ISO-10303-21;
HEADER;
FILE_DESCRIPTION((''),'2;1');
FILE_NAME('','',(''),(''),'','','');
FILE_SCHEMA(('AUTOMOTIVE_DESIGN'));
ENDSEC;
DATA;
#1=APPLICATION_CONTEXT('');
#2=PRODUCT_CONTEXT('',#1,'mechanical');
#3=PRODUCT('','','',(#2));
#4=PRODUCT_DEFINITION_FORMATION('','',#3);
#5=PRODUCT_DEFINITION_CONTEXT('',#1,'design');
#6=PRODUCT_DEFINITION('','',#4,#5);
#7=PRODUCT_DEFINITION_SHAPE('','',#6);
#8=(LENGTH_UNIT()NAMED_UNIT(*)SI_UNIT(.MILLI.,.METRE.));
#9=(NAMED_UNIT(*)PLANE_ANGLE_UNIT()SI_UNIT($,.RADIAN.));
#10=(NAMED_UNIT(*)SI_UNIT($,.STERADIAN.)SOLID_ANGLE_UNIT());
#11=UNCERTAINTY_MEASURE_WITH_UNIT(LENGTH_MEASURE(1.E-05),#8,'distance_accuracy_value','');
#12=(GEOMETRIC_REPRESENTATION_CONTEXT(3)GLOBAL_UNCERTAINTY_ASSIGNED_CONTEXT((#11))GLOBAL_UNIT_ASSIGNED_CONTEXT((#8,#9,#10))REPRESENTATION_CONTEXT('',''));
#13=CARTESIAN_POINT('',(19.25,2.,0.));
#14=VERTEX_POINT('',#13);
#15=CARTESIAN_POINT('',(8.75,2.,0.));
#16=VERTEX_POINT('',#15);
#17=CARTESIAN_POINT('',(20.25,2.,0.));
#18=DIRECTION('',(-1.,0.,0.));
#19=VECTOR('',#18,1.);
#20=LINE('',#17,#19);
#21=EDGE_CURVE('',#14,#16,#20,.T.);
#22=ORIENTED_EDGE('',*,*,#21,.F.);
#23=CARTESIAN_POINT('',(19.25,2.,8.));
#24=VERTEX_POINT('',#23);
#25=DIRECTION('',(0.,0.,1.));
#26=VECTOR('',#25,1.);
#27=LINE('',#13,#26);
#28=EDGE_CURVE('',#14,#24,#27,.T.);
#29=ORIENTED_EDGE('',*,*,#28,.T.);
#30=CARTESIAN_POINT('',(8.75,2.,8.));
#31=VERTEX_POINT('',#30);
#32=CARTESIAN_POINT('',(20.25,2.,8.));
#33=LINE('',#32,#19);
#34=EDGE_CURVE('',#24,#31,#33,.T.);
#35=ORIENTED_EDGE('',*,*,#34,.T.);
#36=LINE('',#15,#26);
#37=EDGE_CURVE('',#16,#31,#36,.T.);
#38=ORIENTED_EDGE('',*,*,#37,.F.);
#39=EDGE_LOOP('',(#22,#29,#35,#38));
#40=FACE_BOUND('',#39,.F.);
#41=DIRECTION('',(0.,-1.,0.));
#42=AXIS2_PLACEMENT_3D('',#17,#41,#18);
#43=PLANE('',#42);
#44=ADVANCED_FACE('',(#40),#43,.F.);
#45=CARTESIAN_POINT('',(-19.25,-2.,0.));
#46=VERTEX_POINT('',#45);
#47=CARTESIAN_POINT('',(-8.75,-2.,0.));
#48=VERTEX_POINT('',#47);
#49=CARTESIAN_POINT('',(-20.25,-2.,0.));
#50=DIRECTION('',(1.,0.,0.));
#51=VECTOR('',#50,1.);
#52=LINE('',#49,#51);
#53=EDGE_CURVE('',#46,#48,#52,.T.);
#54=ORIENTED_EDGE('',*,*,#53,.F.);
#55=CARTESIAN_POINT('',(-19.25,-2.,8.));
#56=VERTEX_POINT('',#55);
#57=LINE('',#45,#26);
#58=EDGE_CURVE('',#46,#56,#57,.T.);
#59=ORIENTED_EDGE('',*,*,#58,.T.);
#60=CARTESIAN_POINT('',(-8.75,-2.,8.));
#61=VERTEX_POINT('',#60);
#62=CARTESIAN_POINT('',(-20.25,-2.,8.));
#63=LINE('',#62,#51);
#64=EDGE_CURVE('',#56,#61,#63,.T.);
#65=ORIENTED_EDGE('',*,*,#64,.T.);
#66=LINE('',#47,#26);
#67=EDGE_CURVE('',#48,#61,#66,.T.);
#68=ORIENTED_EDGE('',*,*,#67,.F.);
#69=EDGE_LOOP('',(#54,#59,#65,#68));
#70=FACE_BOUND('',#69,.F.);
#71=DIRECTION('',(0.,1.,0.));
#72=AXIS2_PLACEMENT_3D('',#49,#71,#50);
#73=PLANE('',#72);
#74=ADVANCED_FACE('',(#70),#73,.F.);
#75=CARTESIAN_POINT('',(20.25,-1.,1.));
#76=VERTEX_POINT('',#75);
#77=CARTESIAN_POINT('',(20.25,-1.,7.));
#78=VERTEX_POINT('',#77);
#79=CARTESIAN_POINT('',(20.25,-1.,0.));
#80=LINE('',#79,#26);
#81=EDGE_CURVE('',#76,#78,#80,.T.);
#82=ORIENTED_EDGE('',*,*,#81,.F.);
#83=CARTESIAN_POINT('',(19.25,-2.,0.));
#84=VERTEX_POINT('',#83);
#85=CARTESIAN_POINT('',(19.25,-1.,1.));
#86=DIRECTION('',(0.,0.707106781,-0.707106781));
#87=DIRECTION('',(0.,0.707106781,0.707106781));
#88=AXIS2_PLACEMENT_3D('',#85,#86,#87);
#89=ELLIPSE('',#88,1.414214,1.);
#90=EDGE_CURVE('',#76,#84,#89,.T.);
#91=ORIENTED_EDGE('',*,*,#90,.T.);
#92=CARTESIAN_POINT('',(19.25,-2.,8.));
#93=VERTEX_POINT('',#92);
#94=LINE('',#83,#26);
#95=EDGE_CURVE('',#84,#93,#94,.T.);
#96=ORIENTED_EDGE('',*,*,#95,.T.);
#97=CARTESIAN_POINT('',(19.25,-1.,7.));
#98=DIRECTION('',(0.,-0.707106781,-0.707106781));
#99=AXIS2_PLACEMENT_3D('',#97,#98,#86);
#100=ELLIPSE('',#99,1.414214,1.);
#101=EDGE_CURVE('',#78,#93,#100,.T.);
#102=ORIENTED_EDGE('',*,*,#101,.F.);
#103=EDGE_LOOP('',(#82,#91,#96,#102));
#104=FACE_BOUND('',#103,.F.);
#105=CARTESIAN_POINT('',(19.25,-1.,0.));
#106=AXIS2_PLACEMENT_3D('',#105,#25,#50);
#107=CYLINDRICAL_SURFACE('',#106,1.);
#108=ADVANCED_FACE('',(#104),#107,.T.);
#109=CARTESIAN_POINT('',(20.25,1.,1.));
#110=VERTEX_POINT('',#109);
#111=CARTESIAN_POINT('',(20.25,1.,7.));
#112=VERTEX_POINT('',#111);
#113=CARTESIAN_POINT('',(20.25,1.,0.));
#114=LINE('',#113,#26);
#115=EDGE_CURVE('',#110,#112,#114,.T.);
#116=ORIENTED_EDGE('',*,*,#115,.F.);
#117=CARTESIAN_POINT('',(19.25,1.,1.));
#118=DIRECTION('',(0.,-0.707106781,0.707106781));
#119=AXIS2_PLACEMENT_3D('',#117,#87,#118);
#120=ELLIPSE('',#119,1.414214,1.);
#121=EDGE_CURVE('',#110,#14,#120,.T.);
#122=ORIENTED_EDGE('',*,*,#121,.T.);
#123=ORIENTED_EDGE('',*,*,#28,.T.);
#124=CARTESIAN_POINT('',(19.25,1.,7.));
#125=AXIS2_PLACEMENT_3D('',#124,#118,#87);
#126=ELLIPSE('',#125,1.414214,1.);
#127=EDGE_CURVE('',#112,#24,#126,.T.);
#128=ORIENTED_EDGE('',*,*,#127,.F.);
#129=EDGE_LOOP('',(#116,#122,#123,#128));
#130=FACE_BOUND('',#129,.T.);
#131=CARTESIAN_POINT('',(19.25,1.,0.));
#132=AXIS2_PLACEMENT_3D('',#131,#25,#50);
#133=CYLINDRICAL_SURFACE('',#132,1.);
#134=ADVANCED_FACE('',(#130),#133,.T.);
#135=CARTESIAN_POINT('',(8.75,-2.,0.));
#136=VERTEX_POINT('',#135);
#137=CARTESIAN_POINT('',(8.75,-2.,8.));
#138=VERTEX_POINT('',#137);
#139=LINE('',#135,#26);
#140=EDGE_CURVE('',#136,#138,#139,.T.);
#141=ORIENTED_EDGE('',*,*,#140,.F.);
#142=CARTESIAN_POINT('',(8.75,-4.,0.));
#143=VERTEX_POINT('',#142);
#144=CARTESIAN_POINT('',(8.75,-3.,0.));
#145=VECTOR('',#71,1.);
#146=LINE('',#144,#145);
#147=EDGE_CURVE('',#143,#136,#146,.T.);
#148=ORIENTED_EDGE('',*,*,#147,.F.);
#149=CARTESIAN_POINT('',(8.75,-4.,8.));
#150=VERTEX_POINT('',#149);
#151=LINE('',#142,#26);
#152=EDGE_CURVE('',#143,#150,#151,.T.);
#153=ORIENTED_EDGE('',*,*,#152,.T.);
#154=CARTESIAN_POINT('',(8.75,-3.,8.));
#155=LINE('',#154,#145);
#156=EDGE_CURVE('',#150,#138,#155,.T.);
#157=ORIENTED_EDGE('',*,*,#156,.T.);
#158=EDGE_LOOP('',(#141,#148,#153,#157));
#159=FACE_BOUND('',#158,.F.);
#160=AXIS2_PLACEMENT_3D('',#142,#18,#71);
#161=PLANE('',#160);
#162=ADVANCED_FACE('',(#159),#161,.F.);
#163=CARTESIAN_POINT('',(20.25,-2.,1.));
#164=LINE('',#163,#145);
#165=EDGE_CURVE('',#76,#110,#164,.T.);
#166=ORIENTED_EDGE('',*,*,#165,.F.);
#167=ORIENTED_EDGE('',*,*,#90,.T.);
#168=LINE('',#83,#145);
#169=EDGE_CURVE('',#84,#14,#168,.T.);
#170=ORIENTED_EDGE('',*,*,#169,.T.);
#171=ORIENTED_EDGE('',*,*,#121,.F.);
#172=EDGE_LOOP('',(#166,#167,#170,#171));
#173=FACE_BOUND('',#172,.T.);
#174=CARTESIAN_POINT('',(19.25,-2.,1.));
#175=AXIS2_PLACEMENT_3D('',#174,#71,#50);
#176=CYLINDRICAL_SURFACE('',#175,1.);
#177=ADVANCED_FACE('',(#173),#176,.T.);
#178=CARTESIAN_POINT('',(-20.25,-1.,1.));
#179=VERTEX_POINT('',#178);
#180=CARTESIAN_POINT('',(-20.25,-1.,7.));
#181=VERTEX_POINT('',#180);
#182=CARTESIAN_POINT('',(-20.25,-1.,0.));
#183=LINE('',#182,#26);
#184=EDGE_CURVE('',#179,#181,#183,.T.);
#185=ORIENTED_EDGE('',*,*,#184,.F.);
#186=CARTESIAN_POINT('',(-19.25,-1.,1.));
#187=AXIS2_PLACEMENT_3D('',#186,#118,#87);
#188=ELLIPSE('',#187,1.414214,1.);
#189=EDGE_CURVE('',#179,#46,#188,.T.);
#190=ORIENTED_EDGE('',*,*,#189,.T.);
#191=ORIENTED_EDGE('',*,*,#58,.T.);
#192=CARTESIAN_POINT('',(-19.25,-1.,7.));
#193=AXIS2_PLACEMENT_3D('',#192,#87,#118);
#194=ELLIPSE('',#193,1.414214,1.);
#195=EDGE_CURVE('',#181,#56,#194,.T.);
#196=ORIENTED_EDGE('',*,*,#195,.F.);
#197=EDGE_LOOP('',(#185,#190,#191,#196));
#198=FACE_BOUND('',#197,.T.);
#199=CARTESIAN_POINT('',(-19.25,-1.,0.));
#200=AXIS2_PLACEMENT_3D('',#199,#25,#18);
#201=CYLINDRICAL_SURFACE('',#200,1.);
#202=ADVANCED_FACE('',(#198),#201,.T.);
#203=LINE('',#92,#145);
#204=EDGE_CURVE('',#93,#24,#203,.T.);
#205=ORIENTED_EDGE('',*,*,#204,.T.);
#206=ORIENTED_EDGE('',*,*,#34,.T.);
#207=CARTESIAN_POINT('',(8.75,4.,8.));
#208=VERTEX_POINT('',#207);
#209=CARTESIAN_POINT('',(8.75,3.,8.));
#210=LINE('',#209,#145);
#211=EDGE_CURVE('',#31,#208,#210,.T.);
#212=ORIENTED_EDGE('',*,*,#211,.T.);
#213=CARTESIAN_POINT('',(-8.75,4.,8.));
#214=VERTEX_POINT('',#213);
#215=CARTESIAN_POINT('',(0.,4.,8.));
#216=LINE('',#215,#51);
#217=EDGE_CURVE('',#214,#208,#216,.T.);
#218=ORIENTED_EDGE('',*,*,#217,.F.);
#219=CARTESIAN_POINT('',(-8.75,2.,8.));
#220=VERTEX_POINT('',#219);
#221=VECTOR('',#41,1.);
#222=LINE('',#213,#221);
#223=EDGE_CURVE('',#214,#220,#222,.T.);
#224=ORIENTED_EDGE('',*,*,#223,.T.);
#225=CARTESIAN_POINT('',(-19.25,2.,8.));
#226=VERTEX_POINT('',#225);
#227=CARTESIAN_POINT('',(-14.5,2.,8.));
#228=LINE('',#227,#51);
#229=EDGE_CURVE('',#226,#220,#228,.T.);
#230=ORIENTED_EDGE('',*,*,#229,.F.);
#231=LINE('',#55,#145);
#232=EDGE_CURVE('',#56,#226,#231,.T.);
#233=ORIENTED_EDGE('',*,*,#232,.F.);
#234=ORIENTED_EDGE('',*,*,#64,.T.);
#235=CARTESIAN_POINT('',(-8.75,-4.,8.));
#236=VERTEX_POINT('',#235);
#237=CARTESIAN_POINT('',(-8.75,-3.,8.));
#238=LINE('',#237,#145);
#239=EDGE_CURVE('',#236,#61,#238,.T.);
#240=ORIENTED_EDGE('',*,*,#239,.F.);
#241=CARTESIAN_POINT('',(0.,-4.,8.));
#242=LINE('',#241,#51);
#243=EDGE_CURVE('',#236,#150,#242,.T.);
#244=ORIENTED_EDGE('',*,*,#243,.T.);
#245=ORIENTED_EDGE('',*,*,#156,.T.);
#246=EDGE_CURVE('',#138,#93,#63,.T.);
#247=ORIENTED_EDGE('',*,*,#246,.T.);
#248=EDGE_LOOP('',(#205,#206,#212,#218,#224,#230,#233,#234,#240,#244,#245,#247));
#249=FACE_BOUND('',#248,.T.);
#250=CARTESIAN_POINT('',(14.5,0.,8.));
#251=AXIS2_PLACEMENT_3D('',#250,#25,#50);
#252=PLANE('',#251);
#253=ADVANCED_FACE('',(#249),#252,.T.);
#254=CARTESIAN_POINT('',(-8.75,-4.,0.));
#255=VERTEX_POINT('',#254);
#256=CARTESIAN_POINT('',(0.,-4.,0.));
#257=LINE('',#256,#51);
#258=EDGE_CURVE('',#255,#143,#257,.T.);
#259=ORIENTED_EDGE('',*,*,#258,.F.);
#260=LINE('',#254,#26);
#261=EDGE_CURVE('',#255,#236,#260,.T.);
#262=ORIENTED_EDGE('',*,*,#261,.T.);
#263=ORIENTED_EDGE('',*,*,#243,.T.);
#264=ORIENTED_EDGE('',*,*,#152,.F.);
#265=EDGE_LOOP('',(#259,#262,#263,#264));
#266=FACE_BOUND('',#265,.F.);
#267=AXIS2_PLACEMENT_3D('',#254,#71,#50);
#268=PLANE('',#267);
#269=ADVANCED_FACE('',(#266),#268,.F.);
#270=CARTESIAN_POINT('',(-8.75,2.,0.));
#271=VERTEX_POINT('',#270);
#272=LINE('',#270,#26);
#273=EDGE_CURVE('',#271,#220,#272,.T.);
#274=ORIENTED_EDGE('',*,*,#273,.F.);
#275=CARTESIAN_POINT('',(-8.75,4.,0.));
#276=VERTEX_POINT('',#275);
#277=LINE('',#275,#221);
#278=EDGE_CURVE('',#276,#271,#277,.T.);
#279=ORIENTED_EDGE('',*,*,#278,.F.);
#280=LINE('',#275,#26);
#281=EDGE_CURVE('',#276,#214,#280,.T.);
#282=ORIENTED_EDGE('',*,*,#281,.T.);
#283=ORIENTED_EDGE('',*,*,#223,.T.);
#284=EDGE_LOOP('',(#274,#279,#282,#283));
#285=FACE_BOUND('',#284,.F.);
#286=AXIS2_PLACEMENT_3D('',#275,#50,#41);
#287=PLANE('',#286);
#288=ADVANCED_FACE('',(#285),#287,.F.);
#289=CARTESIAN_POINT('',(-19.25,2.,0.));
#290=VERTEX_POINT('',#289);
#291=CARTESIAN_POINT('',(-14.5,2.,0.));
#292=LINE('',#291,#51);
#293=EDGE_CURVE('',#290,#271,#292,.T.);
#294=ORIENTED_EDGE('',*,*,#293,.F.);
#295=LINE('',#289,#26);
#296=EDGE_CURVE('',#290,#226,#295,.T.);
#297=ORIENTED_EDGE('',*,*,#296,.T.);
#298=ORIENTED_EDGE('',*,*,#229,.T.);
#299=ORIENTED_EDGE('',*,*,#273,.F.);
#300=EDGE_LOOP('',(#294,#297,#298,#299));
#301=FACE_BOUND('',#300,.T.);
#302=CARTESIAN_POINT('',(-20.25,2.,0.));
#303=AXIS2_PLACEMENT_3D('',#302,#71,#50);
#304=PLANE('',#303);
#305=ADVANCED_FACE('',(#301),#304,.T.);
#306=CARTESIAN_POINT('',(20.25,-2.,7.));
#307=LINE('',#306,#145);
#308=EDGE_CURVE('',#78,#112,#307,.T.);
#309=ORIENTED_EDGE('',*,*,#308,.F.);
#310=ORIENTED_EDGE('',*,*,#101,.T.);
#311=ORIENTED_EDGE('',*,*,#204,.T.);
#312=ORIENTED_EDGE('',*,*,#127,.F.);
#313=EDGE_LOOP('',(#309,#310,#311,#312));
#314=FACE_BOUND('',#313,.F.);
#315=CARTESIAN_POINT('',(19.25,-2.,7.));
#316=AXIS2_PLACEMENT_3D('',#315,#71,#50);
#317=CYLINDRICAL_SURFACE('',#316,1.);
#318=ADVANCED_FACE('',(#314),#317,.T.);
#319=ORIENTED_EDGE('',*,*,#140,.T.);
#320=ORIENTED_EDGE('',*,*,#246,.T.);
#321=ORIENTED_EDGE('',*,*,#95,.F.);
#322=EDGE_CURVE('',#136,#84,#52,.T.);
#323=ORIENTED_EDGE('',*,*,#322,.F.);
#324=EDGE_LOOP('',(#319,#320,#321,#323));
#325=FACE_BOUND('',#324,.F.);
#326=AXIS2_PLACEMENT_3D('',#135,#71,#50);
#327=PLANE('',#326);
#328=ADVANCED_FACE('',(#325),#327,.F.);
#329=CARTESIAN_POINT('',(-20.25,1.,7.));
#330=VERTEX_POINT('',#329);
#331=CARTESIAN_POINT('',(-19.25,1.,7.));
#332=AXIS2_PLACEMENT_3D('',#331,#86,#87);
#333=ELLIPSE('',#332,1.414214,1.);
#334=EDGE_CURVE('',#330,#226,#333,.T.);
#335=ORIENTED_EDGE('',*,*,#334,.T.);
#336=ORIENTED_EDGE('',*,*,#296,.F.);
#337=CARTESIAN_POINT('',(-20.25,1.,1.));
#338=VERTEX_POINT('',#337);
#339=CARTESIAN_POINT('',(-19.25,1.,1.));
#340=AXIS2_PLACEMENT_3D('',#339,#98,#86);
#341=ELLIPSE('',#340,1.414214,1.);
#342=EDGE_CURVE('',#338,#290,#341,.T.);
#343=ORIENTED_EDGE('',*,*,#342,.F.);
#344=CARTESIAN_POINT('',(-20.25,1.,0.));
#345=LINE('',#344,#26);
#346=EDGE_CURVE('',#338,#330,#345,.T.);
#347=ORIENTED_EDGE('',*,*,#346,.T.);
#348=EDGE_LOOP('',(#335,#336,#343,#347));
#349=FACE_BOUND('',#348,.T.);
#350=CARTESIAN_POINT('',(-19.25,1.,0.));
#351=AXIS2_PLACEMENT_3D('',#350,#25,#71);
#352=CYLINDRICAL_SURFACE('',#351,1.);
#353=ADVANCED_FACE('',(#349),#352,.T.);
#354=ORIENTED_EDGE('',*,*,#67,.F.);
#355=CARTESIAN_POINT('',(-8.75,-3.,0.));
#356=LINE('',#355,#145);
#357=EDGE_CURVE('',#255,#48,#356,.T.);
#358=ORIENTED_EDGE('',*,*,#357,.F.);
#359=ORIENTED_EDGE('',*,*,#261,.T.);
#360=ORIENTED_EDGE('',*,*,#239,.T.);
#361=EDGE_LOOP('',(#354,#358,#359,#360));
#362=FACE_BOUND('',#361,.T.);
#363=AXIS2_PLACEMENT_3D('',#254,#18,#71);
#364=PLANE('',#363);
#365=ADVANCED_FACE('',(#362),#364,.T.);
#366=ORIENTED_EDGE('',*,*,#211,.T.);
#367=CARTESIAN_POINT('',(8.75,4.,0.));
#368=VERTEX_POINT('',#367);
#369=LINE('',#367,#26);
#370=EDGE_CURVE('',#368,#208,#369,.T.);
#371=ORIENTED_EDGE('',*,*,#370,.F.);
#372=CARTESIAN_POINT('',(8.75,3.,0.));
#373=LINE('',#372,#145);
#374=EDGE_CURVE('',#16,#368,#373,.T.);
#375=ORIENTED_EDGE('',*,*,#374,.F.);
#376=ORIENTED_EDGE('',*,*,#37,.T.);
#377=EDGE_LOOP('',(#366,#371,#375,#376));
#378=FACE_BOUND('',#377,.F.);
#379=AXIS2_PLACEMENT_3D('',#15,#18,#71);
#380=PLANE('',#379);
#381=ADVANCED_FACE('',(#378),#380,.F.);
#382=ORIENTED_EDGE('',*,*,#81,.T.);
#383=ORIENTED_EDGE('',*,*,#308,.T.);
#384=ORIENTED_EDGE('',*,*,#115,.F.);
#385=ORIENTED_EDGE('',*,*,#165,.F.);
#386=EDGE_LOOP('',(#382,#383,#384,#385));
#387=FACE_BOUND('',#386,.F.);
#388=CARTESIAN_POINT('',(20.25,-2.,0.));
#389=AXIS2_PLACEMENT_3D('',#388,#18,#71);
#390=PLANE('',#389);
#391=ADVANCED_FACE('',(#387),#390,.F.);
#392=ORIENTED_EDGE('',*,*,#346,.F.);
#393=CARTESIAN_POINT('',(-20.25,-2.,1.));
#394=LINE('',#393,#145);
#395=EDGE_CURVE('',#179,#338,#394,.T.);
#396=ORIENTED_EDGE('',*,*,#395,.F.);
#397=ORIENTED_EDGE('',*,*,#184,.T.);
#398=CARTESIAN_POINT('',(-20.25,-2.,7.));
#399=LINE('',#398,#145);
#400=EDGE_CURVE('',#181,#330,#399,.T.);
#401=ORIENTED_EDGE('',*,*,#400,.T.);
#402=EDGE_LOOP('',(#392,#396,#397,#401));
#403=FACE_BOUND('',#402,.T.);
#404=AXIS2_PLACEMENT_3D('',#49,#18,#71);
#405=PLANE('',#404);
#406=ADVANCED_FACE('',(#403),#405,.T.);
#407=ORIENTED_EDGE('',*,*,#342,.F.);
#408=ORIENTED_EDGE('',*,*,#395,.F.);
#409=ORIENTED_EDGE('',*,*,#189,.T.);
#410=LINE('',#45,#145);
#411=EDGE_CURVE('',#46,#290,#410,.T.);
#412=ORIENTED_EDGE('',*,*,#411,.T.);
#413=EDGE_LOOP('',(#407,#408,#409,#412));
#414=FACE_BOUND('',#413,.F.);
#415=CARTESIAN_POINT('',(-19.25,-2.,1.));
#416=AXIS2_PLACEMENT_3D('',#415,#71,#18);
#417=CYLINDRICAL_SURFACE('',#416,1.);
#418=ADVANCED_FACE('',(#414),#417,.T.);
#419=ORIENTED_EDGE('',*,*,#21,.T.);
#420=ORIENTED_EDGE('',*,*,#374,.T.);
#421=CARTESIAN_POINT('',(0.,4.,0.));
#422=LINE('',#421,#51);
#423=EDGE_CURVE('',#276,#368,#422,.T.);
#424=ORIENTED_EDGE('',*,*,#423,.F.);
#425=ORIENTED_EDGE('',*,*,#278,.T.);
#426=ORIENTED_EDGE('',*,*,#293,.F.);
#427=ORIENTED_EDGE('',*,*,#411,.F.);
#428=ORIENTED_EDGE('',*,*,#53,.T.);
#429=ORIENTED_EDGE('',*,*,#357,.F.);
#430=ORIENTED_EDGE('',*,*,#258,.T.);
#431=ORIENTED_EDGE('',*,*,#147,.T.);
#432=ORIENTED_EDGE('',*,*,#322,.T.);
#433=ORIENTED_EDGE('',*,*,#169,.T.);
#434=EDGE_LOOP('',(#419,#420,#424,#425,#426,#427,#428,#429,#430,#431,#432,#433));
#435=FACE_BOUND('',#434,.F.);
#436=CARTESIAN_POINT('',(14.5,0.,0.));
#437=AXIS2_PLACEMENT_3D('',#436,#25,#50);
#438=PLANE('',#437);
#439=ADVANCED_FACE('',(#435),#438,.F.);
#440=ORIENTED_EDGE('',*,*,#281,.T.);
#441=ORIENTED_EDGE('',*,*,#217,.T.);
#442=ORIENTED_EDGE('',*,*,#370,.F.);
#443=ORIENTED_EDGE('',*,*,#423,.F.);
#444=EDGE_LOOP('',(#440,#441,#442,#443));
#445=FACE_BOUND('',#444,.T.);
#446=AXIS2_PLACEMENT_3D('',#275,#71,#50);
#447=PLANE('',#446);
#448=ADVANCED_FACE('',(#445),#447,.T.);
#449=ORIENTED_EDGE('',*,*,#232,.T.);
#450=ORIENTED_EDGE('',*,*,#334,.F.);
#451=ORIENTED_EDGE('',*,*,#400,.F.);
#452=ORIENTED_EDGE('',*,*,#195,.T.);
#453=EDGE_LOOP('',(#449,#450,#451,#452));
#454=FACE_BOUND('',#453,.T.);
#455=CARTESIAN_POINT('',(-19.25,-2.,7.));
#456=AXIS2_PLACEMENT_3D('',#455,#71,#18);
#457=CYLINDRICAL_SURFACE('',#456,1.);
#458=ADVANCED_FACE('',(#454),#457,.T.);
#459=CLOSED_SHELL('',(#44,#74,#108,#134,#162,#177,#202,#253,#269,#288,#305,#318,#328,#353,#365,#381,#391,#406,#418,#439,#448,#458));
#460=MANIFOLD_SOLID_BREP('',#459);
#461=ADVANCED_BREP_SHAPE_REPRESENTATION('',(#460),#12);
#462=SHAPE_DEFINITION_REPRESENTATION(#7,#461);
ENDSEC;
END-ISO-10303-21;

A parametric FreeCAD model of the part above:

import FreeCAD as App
import Part
import Sketcher
Q = App.Units.Quantity


def edges_at(feature, points):
    """Names of the edges that pass closest to the given points."""
    edges = feature.Shape.Edges
    near = lambda p: min(range(len(edges)), key=lambda i: edges[i].distToShape(Part.Vertex(*p))[0])
    return sorted({f"Edge{near(p) + 1}" for p in points})


def add_polygon(sketch, points):
    """Adds a closed chain of lines whose ends are joined by coincident constraints."""
    first, n = sketch.GeometryCount, len(points)
    for a, b in zip(points, points[1:] + points[:1]):
        sketch.addGeometry(Part.LineSegment(App.Vector(*a, 0), App.Vector(*b, 0)), False)
    for i in range(n):
        sketch.addConstraint(Sketcher.Constraint("Coincident", first + i, 2, first + (i + 1) % n, 1))

doc = App.newDocument("Part")
body = doc.addObject("PartDesign::Body", "Body")

# Sketch on XY plane
sketch1 = body.newObject("Sketcher::SketchObject", "Sketch")
sketch1.AttachmentSupport = (doc.getObject("XY_Plane"), [""])
sketch1.MapMode = "FlatFace"
add_polygon(sketch1, [(20.2, -2), (20.2, 2), (8.8, 2), (8.8, 4), (-8.8, 4), (-8.8, 2), (-20.2, 2), (-20.2, -2), (-8.8, -2), (-8.8, -4), (8.8, -4), (8.8, -2)])  # lines 0-11
sketch1.addConstraint([
    Sketcher.Constraint("Vertical", 0),
    Sketcher.Constraint("Horizontal", 1),
    Sketcher.Constraint("Vertical", 2),
    Sketcher.Constraint("Horizontal", 3),
    Sketcher.Constraint("Vertical", 4),
    Sketcher.Constraint("Horizontal", 5),
    Sketcher.Constraint("Vertical", 6),
    Sketcher.Constraint("Horizontal", 7),
    Sketcher.Constraint("Vertical", 8),
    Sketcher.Constraint("Horizontal", 9),
    Sketcher.Constraint("Vertical", 10),
    Sketcher.Constraint("Horizontal", 11),
    Sketcher.Constraint("Symmetric", 0, 2, 6, 2, -1, 1),
    Sketcher.Constraint("Symmetric", 2, 2, 8, 2, -1, 1),
    Sketcher.Constraint("Symmetric", 4, 2, 10, 2, -1, 1),
    Sketcher.Constraint("Symmetric", 1, 2, 4, 2, -2),
    Sketcher.Constraint("DistanceY", 0, 1, 0, 2, Q("4 mm")),
    Sketcher.Constraint("DistanceY", 2, 1, 2, 2, Q("2 mm")),
    Sketcher.Constraint("DistanceX", 1, 2, 1, 1, Q("11.5 mm")),
    Sketcher.Constraint("DistanceX", 3, 2, 3, 1, Q("17.5 mm")),
])
pad1 = body.newObject("PartDesign::Pad", "Pad")
pad1.Profile = sketch1
pad1.Length = 8
doc.recompute()

fillet = body.newObject("PartDesign::Fillet", "Fillet")
fillet.Base = (pad1, edges_at(pad1, [
    (-20.25, -2, 4),
    (-20.25, 0, 8),
    (-20.25, 0, 0),
    (-20.25, 2, 4),
    (20.25, 0, 8),
    (20.25, 2, 4),
    (20.25, 0, 0),
    (20.25, -2, 4),
]))
fillet.Radius = 1

doc.recompute()
